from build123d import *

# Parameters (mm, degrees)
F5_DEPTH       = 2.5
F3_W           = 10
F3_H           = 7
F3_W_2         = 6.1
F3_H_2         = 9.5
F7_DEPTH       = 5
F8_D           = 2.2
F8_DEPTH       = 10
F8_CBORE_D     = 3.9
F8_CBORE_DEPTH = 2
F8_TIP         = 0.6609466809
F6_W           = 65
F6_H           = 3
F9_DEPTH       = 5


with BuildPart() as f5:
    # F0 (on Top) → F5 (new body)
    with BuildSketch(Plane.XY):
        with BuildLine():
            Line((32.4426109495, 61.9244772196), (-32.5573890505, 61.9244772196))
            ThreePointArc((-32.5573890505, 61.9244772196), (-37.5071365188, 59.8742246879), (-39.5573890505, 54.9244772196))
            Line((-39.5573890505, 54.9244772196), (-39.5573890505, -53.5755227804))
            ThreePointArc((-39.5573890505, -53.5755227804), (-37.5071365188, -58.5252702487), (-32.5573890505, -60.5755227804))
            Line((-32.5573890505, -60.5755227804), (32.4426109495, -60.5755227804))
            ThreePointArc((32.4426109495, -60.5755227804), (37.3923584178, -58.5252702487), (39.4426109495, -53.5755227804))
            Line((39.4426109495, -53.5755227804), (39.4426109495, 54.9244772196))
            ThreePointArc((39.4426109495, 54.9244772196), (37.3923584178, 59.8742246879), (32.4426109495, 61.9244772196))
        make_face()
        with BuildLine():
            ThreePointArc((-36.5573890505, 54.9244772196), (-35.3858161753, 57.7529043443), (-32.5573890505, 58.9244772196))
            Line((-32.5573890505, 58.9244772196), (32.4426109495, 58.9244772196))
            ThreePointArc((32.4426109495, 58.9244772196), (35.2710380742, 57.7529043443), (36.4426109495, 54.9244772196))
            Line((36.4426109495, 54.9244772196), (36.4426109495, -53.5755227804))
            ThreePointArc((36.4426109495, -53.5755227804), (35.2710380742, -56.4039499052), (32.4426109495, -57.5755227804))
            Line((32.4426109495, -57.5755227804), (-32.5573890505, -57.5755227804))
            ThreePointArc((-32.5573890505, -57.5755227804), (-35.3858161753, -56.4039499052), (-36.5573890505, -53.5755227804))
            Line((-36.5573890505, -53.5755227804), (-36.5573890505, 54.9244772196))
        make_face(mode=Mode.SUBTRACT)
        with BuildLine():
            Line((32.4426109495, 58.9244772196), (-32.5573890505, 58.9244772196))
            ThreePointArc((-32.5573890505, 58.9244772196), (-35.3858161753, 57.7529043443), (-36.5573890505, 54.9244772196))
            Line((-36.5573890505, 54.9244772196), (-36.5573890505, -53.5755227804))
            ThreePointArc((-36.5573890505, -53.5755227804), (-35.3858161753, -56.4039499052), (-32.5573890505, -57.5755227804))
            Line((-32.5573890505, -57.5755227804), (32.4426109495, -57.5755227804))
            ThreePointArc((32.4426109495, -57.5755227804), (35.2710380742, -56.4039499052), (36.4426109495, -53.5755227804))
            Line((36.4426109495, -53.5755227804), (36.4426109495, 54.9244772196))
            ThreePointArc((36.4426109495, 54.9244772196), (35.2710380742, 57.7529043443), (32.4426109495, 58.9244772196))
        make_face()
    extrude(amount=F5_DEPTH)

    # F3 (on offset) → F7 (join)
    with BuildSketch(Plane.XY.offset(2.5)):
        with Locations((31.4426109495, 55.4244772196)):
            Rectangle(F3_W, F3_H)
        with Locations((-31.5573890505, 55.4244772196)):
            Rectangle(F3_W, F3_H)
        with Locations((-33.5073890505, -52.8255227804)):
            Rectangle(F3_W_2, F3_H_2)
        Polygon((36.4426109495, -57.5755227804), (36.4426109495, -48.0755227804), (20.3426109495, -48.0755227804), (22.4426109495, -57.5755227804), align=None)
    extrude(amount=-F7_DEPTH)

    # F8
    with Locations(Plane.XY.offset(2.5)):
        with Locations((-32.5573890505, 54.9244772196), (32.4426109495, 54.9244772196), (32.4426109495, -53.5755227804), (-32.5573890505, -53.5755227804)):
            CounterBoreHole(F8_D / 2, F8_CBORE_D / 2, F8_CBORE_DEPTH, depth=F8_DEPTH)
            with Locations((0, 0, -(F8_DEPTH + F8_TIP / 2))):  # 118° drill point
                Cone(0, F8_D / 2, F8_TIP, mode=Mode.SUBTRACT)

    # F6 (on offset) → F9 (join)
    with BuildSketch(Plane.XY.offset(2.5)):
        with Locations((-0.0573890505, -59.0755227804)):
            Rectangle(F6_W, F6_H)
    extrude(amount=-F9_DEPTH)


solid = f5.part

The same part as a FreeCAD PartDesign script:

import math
import FreeCAD as App
import Part
import Sketcher
Q = App.Units.Quantity


def add_polygon(sketch, points):
    """Adds a closed chain of lines whose ends are joined by coincident constraints."""
    first, n = sketch.GeometryCount, len(points)
    for a, b in zip(points, points[1:] + points[:1]):
        sketch.addGeometry(Part.LineSegment(App.Vector(*a, 0), App.Vector(*b, 0)), False)
    for i in range(n):
        sketch.addConstraint(Sketcher.Constraint("Coincident", first + i, 2, first + (i + 1) % n, 1))

doc = App.newDocument("Part")
body = doc.addObject("PartDesign::Body", "Body")

sketch1 = body.newObject("Sketcher::SketchObject", "Sketch")
sketch1.AttachmentSupport = (doc.getObject("XY_Plane"), [""])
sketch1.MapMode = "FlatFace"
sketch1.addGeometry(Part.LineSegment(App.Vector(32, 62, 0), App.Vector(-33, 62, 0)), False)
sketch1.addGeometry(Part.ArcOfCircle(Part.Circle(App.Vector(-33, 55, 0), App.Vector(0, 0, 1), 7), math.radians(90), math.radians(180)), False)
sketch1.addGeometry(Part.LineSegment(App.Vector(-40, 55, 0), App.Vector(-40, -54, 0)), False)
sketch1.addGeometry(Part.ArcOfCircle(Part.Circle(App.Vector(-33, -54, 0), App.Vector(0, 0, 1), 7), math.radians(180), math.radians(270)), False)
sketch1.addGeometry(Part.LineSegment(App.Vector(-33, -61, 0), App.Vector(32, -61, 0)), False)
sketch1.addGeometry(Part.ArcOfCircle(Part.Circle(App.Vector(32, -54, 0), App.Vector(0, 0, 1), 7), math.radians(-90), math.radians(0)), False)
sketch1.addGeometry(Part.LineSegment(App.Vector(39, -54, 0), App.Vector(39, 55, 0)), False)
sketch1.addGeometry(Part.ArcOfCircle(Part.Circle(App.Vector(32, 55, 0), App.Vector(0, 0, 1), 7), math.radians(0), math.radians(90)), False)
sketch1.addConstraint(Sketcher.Constraint("Tangent", 0, 2, 1, 1))
sketch1.addConstraint(Sketcher.Constraint("Tangent", 1, 2, 2, 1))
sketch1.addConstraint(Sketcher.Constraint("Tangent", 2, 2, 3, 1))
sketch1.addConstraint(Sketcher.Constraint("Tangent", 3, 2, 4, 1))
sketch1.addConstraint(Sketcher.Constraint("Tangent", 4, 2, 5, 1))
sketch1.addConstraint(Sketcher.Constraint("Tangent", 5, 2, 6, 1))
sketch1.addConstraint(Sketcher.Constraint("Tangent", 6, 2, 7, 1))
sketch1.addConstraint(Sketcher.Constraint("Tangent", 7, 2, 0, 1))
sketch1.addConstraint(Sketcher.Constraint("Horizontal", 0))
sketch1.addConstraint(Sketcher.Constraint("Vertical", 2))
sketch1.addConstraint(Sketcher.Constraint("Horizontal", 4))
sketch1.addConstraint(Sketcher.Constraint("Vertical", 6))
sketch1.addConstraint(Sketcher.Constraint("Equal", 1, 3))
sketch1.addConstraint(Sketcher.Constraint("Equal", 3, 5))
sketch1.addConstraint(Sketcher.Constraint("Equal", 5, 7))
sketch1.addConstraint(Sketcher.Constraint("Radius", 1, Q("7 mm")))
sketch1.addConstraint(Sketcher.Constraint("DistanceX", 0, 2, 0, 1, Q("65 mm")))
sketch1.addConstraint(Sketcher.Constraint("DistanceY", 2, 2, 2, 1, Q("108.5 mm")))
sketch1.addConstraint(Sketcher.Constraint("DistanceX", 1, 3, -1, 1, Q("32.557389 mm")))
sketch1.addConstraint(Sketcher.Constraint("DistanceY", -1, 1, 1, 3, Q("54.924477 mm")))
pad1 = body.newObject("PartDesign::Pad", "Pad")
pad1.Profile = sketch1
pad1.Length = 2.5

sketch2 = body.newObject("Sketcher::SketchObject", "Sketch001")
sketch2.AttachmentSupport = (doc.getObject("XY_Plane"), [""])
sketch2.MapMode = "FlatFace"
sketch2.AttachmentOffset = App.Placement(App.Vector(0, 0, 2.5), App.Rotation())
add_polygon(sketch2, [(26, 59), (26, 52), (36, 52), (36, 59)])
add_polygon(sketch2, [(-37, 59), (-37, 52), (-27, 52), (-27, 59)])
add_polygon(sketch2, [(-37, -48), (-37, -58), (-30, -58), (-30, -48)])
add_polygon(sketch2, [(36, -58), (36, -48), (20, -48), (22, -58)])
sketch2.addConstraint(Sketcher.Constraint("Vertical", 0))
sketch2.addConstraint(Sketcher.Constraint("Horizontal", 1))
sketch2.addConstraint(Sketcher.Constraint("Vertical", 2))
sketch2.addConstraint(Sketcher.Constraint("Horizontal", 3))
sketch2.addConstraint(Sketcher.Constraint("Vertical", 4))
sketch2.addConstraint(Sketcher.Constraint("Horizontal", 5))
sketch2.addConstraint(Sketcher.Constraint("Vertical", 6))
sketch2.addConstraint(Sketcher.Constraint("Horizontal", 7))
sketch2.addConstraint(Sketcher.Constraint("Vertical", 8))
sketch2.addConstraint(Sketcher.Constraint("Horizontal", 9))
sketch2.addConstraint(Sketcher.Constraint("Vertical", 10))
sketch2.addConstraint(Sketcher.Constraint("Horizontal", 11))
sketch2.addConstraint(Sketcher.Constraint("Vertical", 12))
sketch2.addConstraint(Sketcher.Constraint("Horizontal", 13))
sketch2.addConstraint(Sketcher.Constraint("Horizontal", 15))
sketch2.addConstraint(Sketcher.Constraint("Horizontal", 1, 2, 4, 2))
sketch2.addConstraint(Sketcher.Constraint("Horizontal", 3, 2, 6, 2))
sketch2.addConstraint(Sketcher.Constraint("Horizontal", 11, 2, 12, 2))
sketch2.addConstraint(Sketcher.Constraint("Horizontal", 9, 2, 14, 2))
sketch2.addConstraint(Sketcher.Constraint("Vertical", 7, 2, 8, 2))
sketch2.addConstraint(Sketcher.Constraint("Vertical", 2, 2, 12, 2))
sketch2.addConstraint(Sketcher.Constraint("Equal", 3, 5))
sketch2.addConstraint(Sketcher.Constraint("DistanceX", 1, 1, 1, 2, Q("10 mm")))
sketch2.addConstraint(Sketcher.Constraint("DistanceX", 15, 1, 15, 2, Q("14 mm")))
sketch2.addConstraint(Sketcher.Constraint("DistanceY", 0, 2, 0, 1, Q("7 mm")))
sketch2.addConstraint(Sketcher.Constraint("DistanceX", 9, 1, 9, 2, Q("6.1 mm")))
sketch2.addConstraint(Sketcher.Constraint("DistanceX", 13, 2, 13, 1, Q("16.1 mm")))
sketch2.addConstraint(Sketcher.Constraint("DistanceY", 8, 2, 8, 1, Q("9.5 mm")))
sketch2.addConstraint(Sketcher.Constraint("DistanceX", 4, 2, 0, 2, Q("63 mm")))
sketch2.addConstraint(Sketcher.Constraint("DistanceY", 10, 2, 5, 2, Q("100 mm")))
sketch2.addConstraint(Sketcher.Constraint("DistanceX", -1, 1, 0, 2, Q("26.442611 mm")))
sketch2.addConstraint(Sketcher.Constraint("DistanceY", -1, 1, 0, 2, Q("51.924477 mm")))
pad2 = body.newObject("PartDesign::Pad", "Pad001")
pad2.Profile = sketch2
pad2.Length = 5
pad2.Reversed = True

sketch3 = body.newObject("Sketcher::SketchObject", "Sketch002")
sketch3.AttachmentSupport = (doc.getObject("XY_Plane"), [""])
sketch3.MapMode = "FlatFace"
sketch3.AttachmentOffset = App.Placement(App.Vector(0, 0, 2.5), App.Rotation())
sketch3.addGeometry(Part.Circle(App.Vector(-32.6, 54.9, 0), App.Vector(0, 0, 1), 1.1), False)
sketch3.addGeometry(Part.Circle(App.Vector(32.4, 54.9, 0), App.Vector(0, 0, 1), 1.1), False)
sketch3.addGeometry(Part.Circle(App.Vector(32.4, -53.6, 0), App.Vector(0, 0, 1), 1.1), False)
sketch3.addGeometry(Part.Circle(App.Vector(-32.6, -53.6, 0), App.Vector(0, 0, 1), 1.1), False)
sketch3.addConstraint(Sketcher.Constraint("Equal", 0, 1))
sketch3.addConstraint(Sketcher.Constraint("Equal", 1, 2))
sketch3.addConstraint(Sketcher.Constraint("Equal", 2, 3))
sketch3.addConstraint(Sketcher.Constraint("Horizontal", 0, 3, 1, 3))
sketch3.addConstraint(Sketcher.Constraint("Horizontal", 2, 3, 3, 3))
sketch3.addConstraint(Sketcher.Constraint("Vertical", 1, 3, 2, 3))
sketch3.addConstraint(Sketcher.Constraint("Vertical", 0, 3, 3, 3))
sketch3.addConstraint(Sketcher.Constraint("Diameter", 0, Q("2.2 mm")))
sketch3.addConstraint(Sketcher.Constraint("DistanceX", 0, 3, 1, 3, Q("65 mm")))
sketch3.addConstraint(Sketcher.Constraint("DistanceY", 2, 3, 1, 3, Q("108.5 mm")))
sketch3.addConstraint(Sketcher.Constraint("DistanceX", 0, 3, -1, 1, Q("32.557389 mm")))
sketch3.addConstraint(Sketcher.Constraint("DistanceY", -1, 1, 0, 3, Q("54.924477 mm")))
doc.recompute()
hole = body.newObject("PartDesign::Hole", "Hole")
hole.Profile = sketch3
hole.ThreadType = "None"
hole.Diameter = 2.2
hole.DepthType = "Dimension"
hole.Depth = 10
hole.DrillPoint = "Angled"
hole.DrillPointAngle = 118
hole.HoleCutType = "Counterbore"
hole.HoleCutDiameter = 3.9
hole.HoleCutDepth = 2

sketch4 = body.newObject("Sketcher::SketchObject", "Sketch003")
sketch4.AttachmentSupport = (doc.getObject("XY_Plane"), [""])
sketch4.MapMode = "FlatFace"
sketch4.AttachmentOffset = App.Placement(App.Vector(0, 0, 2.5), App.Rotation())
add_polygon(sketch4, [(-32.6, -57.6), (-32.6, -60.6), (32.4, -60.6), (32.4, -57.6)])
sketch4.addConstraint(Sketcher.Constraint("Vertical", 0))
sketch4.addConstraint(Sketcher.Constraint("Horizontal", 1))
sketch4.addConstraint(Sketcher.Constraint("Vertical", 2))
sketch4.addConstraint(Sketcher.Constraint("Horizontal", 3))
sketch4.addConstraint(Sketcher.Constraint("DistanceX", 1, 1, 1, 2, Q("65 mm")))
sketch4.addConstraint(Sketcher.Constraint("DistanceY", 0, 2, 0, 1, Q("3 mm")))
sketch4.addConstraint(Sketcher.Constraint("DistanceX", 0, 2, -1, 1, Q("32.557389 mm")))
sketch4.addConstraint(Sketcher.Constraint("DistanceY", 0, 2, -1, 1, Q("60.575523 mm")))
pad3 = body.newObject("PartDesign::Pad", "Pad002")
pad3.Profile = sketch4
pad3.Length = 5
pad3.Reversed = True

doc.recompute()
